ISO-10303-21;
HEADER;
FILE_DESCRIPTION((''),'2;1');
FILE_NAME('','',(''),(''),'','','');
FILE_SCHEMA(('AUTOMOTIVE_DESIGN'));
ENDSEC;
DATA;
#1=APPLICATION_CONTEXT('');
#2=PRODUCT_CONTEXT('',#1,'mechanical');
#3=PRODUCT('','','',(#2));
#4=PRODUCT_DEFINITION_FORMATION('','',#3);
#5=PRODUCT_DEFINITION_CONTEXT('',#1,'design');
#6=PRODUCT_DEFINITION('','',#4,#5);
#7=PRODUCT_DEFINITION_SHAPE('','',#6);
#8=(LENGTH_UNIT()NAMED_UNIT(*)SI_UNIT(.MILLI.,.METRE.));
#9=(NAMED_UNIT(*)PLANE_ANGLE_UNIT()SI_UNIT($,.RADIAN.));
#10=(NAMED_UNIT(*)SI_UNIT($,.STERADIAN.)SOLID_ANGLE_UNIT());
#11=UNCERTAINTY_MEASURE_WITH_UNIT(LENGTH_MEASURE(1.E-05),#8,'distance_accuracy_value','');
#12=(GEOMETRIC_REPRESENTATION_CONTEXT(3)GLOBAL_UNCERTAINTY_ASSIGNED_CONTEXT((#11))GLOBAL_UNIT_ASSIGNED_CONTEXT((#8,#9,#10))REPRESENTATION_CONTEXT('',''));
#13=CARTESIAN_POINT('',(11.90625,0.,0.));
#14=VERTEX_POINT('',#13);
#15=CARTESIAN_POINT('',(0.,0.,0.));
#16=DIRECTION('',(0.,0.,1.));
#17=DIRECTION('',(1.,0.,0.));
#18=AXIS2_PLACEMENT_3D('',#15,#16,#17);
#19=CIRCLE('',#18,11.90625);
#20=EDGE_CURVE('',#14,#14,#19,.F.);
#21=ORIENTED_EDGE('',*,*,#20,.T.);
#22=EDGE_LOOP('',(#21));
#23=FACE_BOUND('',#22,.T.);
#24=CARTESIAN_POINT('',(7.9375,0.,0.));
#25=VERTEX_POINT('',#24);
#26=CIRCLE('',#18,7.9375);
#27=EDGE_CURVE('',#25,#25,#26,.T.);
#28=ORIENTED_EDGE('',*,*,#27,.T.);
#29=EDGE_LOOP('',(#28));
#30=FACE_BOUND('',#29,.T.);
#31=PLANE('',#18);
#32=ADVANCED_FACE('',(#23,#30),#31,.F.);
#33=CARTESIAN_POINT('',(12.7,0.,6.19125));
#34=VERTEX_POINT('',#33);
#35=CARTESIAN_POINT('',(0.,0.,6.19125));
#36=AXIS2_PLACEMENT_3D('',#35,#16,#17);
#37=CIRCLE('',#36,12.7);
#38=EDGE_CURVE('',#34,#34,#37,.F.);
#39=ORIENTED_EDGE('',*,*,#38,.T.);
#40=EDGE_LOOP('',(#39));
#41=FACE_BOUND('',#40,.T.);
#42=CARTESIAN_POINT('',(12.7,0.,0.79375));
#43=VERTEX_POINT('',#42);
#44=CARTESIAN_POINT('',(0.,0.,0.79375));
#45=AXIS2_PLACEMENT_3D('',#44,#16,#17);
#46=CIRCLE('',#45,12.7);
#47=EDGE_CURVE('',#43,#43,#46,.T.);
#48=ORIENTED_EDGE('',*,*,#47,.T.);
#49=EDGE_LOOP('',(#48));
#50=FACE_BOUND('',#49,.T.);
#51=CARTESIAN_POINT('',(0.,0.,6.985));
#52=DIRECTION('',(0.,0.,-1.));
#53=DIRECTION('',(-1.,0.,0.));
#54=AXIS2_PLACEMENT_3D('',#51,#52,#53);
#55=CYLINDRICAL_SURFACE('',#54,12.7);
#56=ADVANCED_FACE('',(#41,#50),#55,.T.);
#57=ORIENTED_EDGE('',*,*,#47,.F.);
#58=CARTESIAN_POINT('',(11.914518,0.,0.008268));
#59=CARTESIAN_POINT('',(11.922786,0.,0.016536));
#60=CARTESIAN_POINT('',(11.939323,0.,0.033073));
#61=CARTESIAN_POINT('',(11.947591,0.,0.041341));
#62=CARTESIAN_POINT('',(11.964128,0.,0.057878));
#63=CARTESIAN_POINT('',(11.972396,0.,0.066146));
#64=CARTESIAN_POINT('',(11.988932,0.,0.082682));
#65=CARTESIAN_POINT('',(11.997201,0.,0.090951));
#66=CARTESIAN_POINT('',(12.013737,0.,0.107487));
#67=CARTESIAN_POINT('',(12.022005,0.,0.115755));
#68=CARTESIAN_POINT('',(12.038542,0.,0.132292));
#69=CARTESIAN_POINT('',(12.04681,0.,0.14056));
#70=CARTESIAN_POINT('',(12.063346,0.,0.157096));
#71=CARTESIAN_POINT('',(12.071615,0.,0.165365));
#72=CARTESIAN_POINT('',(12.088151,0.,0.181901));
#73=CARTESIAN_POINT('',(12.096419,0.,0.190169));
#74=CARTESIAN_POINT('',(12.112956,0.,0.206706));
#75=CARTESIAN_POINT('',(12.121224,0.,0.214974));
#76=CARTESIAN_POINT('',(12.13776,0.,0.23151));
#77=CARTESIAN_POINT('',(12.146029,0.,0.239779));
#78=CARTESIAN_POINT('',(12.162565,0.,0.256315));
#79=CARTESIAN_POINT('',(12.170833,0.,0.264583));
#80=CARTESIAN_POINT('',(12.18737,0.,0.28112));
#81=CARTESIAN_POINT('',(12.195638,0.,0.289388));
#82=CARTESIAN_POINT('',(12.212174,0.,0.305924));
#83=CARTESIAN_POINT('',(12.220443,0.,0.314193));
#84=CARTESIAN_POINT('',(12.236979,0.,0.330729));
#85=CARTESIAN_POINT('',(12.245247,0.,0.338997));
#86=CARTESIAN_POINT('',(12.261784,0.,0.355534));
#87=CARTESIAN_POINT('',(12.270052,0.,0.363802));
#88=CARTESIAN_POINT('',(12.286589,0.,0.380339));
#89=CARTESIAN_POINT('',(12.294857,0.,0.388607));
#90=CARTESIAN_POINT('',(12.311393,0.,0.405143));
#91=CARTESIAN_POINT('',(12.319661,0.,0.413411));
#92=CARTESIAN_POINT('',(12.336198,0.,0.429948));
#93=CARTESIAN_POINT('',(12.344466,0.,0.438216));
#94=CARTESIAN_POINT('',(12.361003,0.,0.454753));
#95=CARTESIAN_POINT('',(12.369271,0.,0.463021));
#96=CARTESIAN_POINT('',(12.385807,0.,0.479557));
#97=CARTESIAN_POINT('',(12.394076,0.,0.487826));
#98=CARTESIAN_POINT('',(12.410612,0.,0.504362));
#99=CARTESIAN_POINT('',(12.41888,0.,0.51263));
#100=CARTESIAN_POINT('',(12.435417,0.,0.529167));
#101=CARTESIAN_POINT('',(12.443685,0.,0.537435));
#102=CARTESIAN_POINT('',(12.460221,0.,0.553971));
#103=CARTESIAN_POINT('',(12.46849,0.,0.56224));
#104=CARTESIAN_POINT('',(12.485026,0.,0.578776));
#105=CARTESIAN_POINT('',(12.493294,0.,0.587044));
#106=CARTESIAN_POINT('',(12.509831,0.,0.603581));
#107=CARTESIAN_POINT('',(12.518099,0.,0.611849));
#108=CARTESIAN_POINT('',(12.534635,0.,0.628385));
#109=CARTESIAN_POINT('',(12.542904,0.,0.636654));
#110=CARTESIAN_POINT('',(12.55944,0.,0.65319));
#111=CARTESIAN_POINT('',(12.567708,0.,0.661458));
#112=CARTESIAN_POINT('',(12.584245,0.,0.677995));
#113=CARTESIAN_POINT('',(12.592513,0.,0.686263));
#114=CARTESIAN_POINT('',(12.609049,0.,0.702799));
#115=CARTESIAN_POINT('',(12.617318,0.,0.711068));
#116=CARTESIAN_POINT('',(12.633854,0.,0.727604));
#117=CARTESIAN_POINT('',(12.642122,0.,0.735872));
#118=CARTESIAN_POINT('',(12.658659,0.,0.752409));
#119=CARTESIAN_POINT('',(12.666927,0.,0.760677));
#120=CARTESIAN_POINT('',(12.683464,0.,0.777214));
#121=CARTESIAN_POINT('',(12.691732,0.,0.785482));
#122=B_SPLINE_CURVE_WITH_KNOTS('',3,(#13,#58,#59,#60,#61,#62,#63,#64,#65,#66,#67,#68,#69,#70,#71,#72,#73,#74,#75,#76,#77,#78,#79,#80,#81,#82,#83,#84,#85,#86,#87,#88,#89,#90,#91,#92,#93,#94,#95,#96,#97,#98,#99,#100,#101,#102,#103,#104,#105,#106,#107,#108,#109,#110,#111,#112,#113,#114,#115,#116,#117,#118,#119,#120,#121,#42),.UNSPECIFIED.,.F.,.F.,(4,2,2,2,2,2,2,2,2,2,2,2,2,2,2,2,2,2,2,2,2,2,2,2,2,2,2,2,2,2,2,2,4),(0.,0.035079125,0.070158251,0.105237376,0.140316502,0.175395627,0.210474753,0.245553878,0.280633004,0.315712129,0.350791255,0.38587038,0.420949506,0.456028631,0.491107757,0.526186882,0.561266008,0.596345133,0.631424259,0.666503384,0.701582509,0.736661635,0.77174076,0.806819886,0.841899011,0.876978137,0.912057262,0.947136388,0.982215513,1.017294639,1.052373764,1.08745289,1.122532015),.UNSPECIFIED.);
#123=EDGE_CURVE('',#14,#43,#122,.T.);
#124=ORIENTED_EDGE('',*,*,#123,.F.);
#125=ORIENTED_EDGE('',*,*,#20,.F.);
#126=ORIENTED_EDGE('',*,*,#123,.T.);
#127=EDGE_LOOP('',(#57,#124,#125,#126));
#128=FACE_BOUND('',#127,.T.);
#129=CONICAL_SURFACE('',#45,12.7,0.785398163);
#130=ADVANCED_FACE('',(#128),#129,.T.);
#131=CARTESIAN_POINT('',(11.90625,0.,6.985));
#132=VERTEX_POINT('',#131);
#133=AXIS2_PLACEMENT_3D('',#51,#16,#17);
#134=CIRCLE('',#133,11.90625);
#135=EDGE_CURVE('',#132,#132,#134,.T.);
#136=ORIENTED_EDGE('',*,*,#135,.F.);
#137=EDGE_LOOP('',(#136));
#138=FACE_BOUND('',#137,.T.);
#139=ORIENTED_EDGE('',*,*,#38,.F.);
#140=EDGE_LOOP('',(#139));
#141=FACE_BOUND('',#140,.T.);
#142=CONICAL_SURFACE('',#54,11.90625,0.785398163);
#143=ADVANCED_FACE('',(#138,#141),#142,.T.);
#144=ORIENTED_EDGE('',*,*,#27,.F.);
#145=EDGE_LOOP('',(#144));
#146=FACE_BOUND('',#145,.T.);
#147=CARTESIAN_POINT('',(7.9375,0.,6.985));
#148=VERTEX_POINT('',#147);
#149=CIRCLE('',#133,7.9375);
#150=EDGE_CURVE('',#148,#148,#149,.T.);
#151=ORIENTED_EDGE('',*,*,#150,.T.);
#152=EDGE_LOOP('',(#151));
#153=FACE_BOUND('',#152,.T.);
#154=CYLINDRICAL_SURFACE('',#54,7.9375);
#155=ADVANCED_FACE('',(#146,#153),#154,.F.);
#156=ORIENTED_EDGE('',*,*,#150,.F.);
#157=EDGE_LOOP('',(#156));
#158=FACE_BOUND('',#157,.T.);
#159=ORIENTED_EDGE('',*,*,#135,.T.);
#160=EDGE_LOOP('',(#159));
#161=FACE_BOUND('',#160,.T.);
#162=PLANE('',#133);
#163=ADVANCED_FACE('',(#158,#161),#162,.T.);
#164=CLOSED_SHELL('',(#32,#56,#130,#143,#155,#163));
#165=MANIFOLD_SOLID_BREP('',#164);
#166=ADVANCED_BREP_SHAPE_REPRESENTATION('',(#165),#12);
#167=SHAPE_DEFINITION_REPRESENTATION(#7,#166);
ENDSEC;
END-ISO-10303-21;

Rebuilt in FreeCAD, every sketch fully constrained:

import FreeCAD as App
import Part
import Sketcher
from FreeCAD import Vector
Q = App.Units.Quantity


def edges_at(feature, points):
    """Names of the edges that pass closest to the given points."""
    edges = feature.Shape.Edges
    near = lambda p: min(range(len(edges)), key=lambda i: edges[i].distToShape(Part.Vertex(*p))[0])
    return sorted({f"Edge{near(p) + 1}" for p in points})

doc = App.newDocument("Part")
params = doc.addObject("Spreadsheet::Sheet", "Params")
for row, (alias, value) in enumerate([
    ("sketch1_diameter", "1 in"),
    ("sketch1_diameter2", "0.625 in"),
    ("pad1_length", "0.275 in"),
    ("chamfer_size", "0.03125 in"),
], start=1):
    params.set(f"A{row}", alias)
    params.set(f"B{row}", "=" + value)
    params.setAlias(f"B{row}", alias)

body = doc.addObject("PartDesign::Body", "Body")

sketch1 = doc.addObject("Sketcher::SketchObject", "Sketch")
body.addObject(sketch1)
sketch1.AttachmentSupport = (doc.XY_Plane, [""])
sketch1.MapMode = "FlatFace"
sketch1.addGeometry([
    Part.Circle(Vector(0, 0, 0), Vector(0, 0, 1), 13),
    Part.Circle(Vector(0, 0, 0), Vector(0, 0, 1), 8),
], False)
sketch1.addConstraint([
    Sketcher.Constraint("Coincident", 0, 3, -1, 1),
    Sketcher.Constraint("Coincident", 1, 3, -1, 1),
    Sketcher.Constraint("Diameter", 0, Q("1 in")),
    Sketcher.Constraint("Diameter", 1, Q("0.625 in")),
])
sketch1.setExpression("Constraints[2]", "Params.sketch1_diameter")
sketch1.setExpression("Constraints[3]", "Params.sketch1_diameter2")
pad1 = doc.addObject("PartDesign::Pad", "Pad")
body.addObject(pad1)
pad1.Profile = sketch1
pad1.setExpression("Length", "Params.pad1_length")
doc.recompute()

chamfer = doc.addObject("PartDesign::Chamfer", "Chamfer")
body.addObject(chamfer)
chamfer.Base = (pad1, edges_at(pad1, [(-12.7, 0, 0), (-12.7, 0, 6.985)]))
chamfer.setExpression("Size", "Params.chamfer_size")

doc.recompute()
